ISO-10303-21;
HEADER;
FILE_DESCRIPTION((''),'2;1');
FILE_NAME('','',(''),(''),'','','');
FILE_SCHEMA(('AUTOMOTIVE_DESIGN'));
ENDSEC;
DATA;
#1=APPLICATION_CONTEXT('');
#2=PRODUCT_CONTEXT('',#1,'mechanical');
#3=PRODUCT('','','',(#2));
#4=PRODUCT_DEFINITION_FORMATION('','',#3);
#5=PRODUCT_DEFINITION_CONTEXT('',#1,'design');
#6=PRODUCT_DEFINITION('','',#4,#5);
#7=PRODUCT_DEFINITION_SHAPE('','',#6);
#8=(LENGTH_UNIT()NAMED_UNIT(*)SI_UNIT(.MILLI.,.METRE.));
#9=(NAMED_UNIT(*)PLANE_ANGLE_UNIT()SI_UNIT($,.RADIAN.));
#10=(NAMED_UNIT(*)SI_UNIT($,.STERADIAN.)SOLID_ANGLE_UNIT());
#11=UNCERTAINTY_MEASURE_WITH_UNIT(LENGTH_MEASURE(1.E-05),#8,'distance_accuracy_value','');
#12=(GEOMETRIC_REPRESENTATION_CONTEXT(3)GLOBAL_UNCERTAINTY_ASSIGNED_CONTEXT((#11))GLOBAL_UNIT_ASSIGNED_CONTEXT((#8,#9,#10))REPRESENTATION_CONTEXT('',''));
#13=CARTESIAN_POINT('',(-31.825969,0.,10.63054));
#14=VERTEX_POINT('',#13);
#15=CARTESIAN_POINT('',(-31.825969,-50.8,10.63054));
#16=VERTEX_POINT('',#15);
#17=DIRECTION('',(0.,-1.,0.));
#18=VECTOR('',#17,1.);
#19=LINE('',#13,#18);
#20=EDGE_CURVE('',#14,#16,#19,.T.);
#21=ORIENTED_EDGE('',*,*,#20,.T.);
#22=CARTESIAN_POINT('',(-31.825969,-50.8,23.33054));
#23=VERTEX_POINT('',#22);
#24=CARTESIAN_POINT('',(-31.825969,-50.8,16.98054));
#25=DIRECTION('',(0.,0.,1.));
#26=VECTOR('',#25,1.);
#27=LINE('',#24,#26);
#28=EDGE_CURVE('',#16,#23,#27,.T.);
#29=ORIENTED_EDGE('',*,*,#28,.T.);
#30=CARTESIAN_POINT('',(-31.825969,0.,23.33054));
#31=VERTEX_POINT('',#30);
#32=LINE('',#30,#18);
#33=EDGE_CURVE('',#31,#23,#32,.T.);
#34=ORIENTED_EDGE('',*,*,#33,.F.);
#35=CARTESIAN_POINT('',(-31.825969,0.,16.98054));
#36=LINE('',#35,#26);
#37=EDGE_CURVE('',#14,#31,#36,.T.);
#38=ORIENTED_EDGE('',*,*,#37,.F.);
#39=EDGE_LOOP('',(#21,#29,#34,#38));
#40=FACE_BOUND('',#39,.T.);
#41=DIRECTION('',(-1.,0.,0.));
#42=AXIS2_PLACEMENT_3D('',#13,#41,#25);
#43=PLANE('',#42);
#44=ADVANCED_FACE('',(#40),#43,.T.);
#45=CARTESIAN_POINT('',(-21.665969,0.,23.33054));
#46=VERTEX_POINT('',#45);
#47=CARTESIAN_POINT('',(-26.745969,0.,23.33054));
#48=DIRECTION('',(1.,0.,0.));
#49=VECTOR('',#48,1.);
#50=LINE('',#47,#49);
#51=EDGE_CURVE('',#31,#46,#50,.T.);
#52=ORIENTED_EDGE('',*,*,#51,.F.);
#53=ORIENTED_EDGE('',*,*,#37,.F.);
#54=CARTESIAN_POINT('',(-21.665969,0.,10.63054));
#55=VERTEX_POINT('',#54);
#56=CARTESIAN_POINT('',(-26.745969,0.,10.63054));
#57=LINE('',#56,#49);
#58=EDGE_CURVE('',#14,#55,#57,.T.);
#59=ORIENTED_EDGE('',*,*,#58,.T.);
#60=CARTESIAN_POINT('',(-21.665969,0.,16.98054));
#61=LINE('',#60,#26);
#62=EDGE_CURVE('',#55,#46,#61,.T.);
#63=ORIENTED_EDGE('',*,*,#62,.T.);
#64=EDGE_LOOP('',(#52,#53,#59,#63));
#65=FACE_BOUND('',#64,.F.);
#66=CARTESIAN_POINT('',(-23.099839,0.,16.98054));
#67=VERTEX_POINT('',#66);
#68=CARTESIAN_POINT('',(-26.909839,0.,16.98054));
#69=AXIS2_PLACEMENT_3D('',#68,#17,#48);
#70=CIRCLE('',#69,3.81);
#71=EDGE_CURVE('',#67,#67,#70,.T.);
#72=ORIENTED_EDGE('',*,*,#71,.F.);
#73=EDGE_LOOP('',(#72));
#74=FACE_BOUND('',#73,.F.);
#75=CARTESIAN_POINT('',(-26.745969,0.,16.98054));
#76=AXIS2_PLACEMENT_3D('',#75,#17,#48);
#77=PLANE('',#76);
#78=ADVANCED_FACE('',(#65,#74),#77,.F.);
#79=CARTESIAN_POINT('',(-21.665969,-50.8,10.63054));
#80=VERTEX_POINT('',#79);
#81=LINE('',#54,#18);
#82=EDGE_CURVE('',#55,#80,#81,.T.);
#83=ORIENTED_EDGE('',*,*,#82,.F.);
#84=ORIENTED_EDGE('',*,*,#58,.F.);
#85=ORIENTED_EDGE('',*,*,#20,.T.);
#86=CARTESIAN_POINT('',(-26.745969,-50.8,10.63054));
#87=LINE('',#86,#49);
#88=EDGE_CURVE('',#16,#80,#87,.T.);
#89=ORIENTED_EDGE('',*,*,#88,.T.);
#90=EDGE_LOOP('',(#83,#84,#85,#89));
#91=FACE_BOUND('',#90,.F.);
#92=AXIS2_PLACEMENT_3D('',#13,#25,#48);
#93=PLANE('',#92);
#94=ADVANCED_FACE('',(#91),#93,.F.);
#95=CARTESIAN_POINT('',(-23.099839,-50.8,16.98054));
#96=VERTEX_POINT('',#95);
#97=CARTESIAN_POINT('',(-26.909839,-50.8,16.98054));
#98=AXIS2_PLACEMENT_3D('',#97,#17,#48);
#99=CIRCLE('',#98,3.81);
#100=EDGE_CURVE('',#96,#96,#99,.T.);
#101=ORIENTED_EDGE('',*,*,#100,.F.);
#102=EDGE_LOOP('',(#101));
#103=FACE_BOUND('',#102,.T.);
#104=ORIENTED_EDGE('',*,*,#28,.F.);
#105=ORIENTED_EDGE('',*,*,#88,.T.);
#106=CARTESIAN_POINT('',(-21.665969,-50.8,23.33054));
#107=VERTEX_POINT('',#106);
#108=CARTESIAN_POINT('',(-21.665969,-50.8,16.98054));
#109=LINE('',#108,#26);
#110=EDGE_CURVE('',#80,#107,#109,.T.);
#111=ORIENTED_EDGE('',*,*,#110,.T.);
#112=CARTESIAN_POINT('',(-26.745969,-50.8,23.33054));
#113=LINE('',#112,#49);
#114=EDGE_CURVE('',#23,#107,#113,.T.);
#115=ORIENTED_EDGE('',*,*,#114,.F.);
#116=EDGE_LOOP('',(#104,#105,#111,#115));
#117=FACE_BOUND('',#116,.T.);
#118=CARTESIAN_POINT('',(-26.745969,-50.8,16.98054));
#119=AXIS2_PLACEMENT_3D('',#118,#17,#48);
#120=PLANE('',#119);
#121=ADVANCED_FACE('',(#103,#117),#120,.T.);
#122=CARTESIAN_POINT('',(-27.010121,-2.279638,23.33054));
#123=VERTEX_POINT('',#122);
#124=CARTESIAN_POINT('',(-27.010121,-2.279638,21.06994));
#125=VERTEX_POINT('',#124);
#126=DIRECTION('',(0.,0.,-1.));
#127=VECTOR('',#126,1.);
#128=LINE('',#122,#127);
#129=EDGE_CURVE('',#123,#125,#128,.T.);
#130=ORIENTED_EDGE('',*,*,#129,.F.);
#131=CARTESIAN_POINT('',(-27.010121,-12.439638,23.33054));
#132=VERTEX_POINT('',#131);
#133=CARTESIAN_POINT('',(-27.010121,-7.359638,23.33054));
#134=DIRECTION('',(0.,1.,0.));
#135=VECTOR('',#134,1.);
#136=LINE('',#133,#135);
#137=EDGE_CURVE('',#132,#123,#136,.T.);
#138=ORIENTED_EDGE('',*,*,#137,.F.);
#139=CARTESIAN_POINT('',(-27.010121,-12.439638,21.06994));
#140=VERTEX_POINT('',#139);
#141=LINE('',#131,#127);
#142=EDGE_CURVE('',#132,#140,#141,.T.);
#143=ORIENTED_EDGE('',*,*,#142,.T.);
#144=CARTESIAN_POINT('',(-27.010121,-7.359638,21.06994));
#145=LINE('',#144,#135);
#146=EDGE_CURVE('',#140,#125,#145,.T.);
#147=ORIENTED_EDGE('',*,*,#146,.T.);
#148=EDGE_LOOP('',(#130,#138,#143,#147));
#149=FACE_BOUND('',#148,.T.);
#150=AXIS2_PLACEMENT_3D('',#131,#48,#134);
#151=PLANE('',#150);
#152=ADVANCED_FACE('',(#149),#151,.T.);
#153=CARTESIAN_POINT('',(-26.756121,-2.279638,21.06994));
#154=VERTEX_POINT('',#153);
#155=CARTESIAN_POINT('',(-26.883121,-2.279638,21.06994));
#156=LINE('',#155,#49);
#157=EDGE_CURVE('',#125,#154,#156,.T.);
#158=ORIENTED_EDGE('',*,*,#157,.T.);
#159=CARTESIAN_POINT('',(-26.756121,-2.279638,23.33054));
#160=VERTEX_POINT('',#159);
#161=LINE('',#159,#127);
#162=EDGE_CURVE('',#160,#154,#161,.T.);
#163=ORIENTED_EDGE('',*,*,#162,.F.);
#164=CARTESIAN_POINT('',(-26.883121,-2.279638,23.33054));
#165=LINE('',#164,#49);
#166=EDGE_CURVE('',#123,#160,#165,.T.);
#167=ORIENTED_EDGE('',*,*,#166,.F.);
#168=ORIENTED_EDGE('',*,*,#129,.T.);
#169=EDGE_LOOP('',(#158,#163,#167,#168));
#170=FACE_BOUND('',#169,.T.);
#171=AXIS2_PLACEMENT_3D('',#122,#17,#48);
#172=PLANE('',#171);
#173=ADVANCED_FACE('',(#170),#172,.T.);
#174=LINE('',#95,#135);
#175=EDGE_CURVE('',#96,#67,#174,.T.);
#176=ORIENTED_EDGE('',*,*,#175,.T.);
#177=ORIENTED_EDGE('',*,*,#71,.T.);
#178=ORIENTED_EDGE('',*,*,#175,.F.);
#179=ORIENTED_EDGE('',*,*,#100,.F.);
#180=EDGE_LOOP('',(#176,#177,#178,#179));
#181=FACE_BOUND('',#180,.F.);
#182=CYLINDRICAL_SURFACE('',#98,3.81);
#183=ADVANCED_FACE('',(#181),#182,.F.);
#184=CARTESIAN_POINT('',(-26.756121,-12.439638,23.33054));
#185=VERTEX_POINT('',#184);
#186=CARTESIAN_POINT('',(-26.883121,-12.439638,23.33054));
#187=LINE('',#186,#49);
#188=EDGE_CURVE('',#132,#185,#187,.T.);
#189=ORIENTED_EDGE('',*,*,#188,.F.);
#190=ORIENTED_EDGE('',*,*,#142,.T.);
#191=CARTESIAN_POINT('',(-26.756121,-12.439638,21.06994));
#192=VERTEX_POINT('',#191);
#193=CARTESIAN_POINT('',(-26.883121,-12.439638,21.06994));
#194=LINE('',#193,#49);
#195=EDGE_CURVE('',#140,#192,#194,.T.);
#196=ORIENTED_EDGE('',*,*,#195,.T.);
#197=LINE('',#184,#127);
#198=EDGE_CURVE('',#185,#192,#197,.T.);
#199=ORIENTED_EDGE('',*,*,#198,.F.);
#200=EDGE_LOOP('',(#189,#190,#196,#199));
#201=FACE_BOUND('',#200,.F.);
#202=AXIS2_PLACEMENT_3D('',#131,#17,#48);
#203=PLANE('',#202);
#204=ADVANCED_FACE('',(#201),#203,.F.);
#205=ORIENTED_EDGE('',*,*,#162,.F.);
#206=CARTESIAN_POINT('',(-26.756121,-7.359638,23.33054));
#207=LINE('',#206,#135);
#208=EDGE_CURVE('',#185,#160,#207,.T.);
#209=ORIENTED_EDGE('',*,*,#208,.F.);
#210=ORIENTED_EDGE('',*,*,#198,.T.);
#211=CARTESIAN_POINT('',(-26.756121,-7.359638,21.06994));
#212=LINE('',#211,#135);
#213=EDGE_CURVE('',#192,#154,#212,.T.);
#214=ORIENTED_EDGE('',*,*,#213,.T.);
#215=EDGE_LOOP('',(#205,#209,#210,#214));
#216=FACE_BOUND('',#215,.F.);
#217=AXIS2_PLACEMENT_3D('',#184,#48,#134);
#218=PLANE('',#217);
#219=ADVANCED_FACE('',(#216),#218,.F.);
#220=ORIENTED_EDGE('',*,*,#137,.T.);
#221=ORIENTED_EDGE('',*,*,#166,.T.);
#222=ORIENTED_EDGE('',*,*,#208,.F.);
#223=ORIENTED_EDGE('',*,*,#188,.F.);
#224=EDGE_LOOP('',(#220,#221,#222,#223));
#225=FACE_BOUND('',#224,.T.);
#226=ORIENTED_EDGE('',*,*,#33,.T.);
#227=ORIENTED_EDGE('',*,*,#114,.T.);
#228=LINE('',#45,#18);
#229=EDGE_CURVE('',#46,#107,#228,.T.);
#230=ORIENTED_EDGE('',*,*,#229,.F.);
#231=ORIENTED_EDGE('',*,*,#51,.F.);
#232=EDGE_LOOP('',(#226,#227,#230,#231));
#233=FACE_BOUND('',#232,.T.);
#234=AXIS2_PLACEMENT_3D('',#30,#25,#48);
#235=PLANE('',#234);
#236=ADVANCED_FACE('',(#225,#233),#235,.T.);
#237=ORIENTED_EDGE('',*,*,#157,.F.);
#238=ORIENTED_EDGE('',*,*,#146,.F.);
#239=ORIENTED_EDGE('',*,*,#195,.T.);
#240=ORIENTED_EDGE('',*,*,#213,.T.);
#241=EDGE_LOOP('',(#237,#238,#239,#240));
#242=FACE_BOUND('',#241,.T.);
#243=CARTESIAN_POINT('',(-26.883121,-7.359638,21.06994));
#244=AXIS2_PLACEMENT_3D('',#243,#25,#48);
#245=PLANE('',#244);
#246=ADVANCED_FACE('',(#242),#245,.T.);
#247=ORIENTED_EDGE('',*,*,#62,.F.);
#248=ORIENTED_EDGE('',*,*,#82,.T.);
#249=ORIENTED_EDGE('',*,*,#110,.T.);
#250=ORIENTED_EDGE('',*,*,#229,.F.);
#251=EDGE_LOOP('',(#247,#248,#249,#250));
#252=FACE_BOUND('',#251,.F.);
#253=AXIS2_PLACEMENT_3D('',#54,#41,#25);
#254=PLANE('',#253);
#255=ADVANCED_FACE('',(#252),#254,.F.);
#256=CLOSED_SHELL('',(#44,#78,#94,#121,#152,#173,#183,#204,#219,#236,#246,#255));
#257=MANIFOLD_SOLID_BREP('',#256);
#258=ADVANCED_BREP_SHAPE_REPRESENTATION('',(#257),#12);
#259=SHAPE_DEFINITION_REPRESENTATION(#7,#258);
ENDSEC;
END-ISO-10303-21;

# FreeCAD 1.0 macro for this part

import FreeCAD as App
import Part
import Sketcher

V = App.Vector
Q = App.Units.Quantity


def add_polygon(sketch, points):
    """Adds a closed chain of lines whose ends are joined by coincident constraints."""
    first, n = sketch.GeometryCount, len(points)
    for a, b in zip(points, points[1:] + points[:1]):
        sketch.addGeometry(Part.LineSegment(App.Vector(*a, 0), App.Vector(*b, 0)), False)
    for i in range(n):
        sketch.addConstraint(Sketcher.Constraint("Coincident", first + i, 2, first + (i + 1) % n, 1))

doc = App.newDocument("Part")
body = doc.addObject("PartDesign::Body", "Body")

# Sketch on XZ plane
sketch1 = body.newObject("Sketcher::SketchObject", "Sketch")
sketch1.AttachmentSupport = (doc.getObject("XZ_Plane"), [""])
sketch1.MapMode = "FlatFace"
add_polygon(sketch1, [(-31.825969, 23.33054), (-31.825969, 10.63054), (-21.665969, 10.63054), (-21.665969, 23.33054)])  # lines 0-3
sketch1.addConstraint([
    Sketcher.Constraint("Vertical", 0),
    Sketcher.Constraint("Horizontal", 1),
    Sketcher.Constraint("Vertical", 2),
    Sketcher.Constraint("Horizontal", 3),
    Sketcher.Constraint("DistanceX", 1, 1, 1, 2, Q("0.4 in")),
    Sketcher.Constraint("DistanceY", 0, 2, 0, 1, Q("0.5 in")),
    Sketcher.Constraint("DistanceX", 0, 2, -1, 1, 31.825969),
    Sketcher.Constraint("DistanceY", -1, 1, 0, 2, 10.63054),
])
pad1 = body.newObject("PartDesign::Pad", "Pad")
pad1.Profile = sketch1
pad1.Length = Q("2 in")

# Sketch on XZ plane
sketch2 = body.newObject("Sketcher::SketchObject", "Sketch001")
sketch2.AttachmentSupport = (doc.getObject("XZ_Plane"), [""])
sketch2.MapMode = "FlatFace"
sketch2.AttachmentOffset = App.Placement(V(0, 0, 2 * 25.4), App.Rotation())
sketch2.addGeometry(Part.Circle(V(-26.909839, 16.98054, 0), V(0, 0, 1), 3.81), False)
sketch2.addConstraint([
    Sketcher.Constraint("Diameter", 0, Q("0.3 in")),
    Sketcher.Constraint("DistanceX", 0, 3, -1, 1, 26.909839),
    Sketcher.Constraint("DistanceY", -1, 1, 0, 3, 16.98054),
])
pocket1 = body.newObject("PartDesign::Pocket", "Pocket")
pocket1.Profile = sketch2
pocket1.Length = Q("3 in")

# Sketch on XY plane
sketch3 = body.newObject("Sketcher::SketchObject", "Sketch002")
sketch3.AttachmentSupport = (doc.getObject("XY_Plane"), [""])
sketch3.MapMode = "FlatFace"
sketch3.AttachmentOffset = App.Placement(V(0, 0, 23.33054), App.Rotation())
add_polygon(sketch3, [(-27.010121, -2.279638), (-27.010121, -12.439638), (-26.756121, -12.439638), (-26.756121, -2.279638)])  # lines 0-3
sketch3.addConstraint([
    Sketcher.Constraint("Vertical", 0),
    Sketcher.Constraint("Horizontal", 1),
    Sketcher.Constraint("Vertical", 2),
    Sketcher.Constraint("Horizontal", 3),
    Sketcher.Constraint("DistanceY", 0, 2, 0, 1, Q("0.4 in")),
    Sketcher.Constraint("DistanceX", 1, 1, 1, 2, Q("0.01 in")),
    Sketcher.Constraint("DistanceX", 0, 2, -1, 1, 27.010121),
    Sketcher.Constraint("DistanceY", 0, 2, -1, 1, 12.439638),
])
pocket2 = body.newObject("PartDesign::Pocket", "Pocket001")
pocket2.Profile = sketch3
pocket2.Length = Q("0.089 in")

doc.recompute()
